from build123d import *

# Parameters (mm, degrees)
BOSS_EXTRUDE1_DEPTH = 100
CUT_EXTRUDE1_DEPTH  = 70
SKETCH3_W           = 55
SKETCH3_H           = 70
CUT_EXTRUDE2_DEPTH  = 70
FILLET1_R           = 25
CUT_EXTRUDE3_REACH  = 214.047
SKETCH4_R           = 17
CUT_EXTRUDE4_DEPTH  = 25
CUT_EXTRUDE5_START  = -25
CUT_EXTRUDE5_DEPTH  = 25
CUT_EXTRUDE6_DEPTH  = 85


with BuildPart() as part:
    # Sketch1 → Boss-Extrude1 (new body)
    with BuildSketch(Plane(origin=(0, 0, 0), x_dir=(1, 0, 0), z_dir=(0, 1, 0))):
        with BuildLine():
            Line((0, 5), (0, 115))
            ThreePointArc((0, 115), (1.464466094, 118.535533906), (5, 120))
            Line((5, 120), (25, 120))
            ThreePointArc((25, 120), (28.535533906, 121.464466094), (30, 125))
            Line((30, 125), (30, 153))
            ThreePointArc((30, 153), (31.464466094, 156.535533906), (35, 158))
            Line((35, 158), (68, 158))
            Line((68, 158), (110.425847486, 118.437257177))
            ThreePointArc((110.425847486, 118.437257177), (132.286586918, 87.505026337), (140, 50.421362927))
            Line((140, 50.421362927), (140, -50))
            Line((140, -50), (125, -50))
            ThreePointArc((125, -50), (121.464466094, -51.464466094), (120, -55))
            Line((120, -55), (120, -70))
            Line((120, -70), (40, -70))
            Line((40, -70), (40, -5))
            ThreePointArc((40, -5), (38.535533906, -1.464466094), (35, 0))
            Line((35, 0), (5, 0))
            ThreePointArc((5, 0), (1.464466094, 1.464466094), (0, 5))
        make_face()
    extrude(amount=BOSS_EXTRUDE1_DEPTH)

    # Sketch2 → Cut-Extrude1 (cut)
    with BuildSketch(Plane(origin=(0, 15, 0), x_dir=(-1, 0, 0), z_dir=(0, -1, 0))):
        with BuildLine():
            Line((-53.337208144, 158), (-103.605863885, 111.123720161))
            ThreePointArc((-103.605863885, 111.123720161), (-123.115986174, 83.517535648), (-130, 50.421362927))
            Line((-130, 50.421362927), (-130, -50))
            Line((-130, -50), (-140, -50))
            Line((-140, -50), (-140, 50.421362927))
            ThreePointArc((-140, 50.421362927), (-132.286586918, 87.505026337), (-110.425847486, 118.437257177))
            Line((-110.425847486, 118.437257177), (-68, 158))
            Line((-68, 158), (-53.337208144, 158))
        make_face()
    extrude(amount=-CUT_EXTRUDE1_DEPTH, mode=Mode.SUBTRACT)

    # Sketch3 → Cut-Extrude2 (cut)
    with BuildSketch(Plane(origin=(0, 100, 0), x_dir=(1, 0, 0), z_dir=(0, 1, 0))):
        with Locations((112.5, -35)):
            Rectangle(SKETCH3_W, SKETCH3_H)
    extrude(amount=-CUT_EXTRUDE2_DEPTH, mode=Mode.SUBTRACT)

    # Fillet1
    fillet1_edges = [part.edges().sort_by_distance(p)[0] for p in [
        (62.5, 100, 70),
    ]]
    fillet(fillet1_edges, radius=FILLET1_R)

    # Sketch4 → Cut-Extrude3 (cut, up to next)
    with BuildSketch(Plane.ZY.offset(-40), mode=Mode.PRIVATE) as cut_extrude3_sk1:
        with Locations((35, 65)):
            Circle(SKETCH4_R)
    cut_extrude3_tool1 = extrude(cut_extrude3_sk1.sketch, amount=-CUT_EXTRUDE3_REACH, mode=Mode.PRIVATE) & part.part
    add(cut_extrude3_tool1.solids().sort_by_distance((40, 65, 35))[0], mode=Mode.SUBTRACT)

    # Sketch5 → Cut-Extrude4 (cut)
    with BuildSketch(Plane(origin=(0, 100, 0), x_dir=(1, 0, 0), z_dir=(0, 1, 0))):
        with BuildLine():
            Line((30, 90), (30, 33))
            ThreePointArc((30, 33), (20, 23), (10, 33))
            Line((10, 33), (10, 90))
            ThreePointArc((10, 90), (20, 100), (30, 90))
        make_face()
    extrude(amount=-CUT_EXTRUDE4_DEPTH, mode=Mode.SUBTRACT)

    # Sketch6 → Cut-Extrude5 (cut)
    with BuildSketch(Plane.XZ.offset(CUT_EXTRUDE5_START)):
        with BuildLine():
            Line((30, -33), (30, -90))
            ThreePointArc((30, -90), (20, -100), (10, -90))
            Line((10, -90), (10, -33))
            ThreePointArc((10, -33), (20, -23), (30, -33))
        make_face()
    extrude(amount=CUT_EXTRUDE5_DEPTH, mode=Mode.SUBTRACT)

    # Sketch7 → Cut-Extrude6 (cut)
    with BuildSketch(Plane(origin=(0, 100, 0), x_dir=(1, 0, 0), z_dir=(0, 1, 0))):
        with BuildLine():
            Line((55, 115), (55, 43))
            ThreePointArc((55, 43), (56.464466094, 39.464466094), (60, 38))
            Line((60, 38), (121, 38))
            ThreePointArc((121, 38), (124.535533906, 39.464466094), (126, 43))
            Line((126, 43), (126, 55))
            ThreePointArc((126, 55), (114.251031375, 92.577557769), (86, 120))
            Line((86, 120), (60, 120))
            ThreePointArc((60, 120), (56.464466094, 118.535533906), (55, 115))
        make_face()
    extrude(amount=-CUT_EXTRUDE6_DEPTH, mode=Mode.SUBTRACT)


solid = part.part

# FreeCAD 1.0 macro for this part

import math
import FreeCAD as App
import Part
import Sketcher
Q = App.Units.Quantity


def edges_at(feature, points):
    """Names of the edges that pass closest to the given points."""
    edges = feature.Shape.Edges
    near = lambda p: min(range(len(edges)), key=lambda i: edges[i].distToShape(Part.Vertex(*p))[0])
    return sorted({f"Edge{near(p) + 1}" for p in points})

doc = App.newDocument("Part")
body = doc.addObject("PartDesign::Body", "Body")

# Sketch on XZ plane
sketch1 = doc.addObject("Sketcher::SketchObject", "Sketch")
body.addObject(sketch1)
sketch1.AttachmentSupport = (doc.XZ_Plane, [""])
sketch1.MapMode = "FlatFace"
sketch1.addGeometry([
    Part.LineSegment(App.Vector(0, -115, 0), App.Vector(0, -5, 0)),  # 0
    Part.ArcOfCircle(Part.Circle(App.Vector(5, -5, 0), App.Vector(0, 0, 1), 5), math.radians(90), math.radians(180)),  # 1
    Part.LineSegment(App.Vector(5, 0, 0), App.Vector(35, 0, 0)),  # 2
    Part.ArcOfCircle(Part.Circle(App.Vector(35, 5, 0), App.Vector(0, 0, 1), 5), math.radians(-90), math.radians(0)),  # 3
    Part.LineSegment(App.Vector(40, 5, 0), App.Vector(40, 70, 0)),  # 4
    Part.LineSegment(App.Vector(40, 70, 0), App.Vector(120, 70, 0)),  # 5
    Part.LineSegment(App.Vector(120, 70, 0), App.Vector(120, 55, 0)),  # 6
    Part.ArcOfCircle(Part.Circle(App.Vector(125, 55, 0), App.Vector(0, 0, 1), 5), math.radians(180), math.radians(270)),  # 7
    Part.LineSegment(App.Vector(125, 50, 0), App.Vector(140, 50, 0)),  # 8
    Part.LineSegment(App.Vector(140, 50, 0), App.Vector(140, -50, 0)),  # 9
    Part.ArcOfCircle(Part.Circle(App.Vector(47, -50, 0), App.Vector(0, 0, 1), 93), math.radians(-47), math.radians(0)),  # 10
    Part.LineSegment(App.Vector(110, -118, 0), App.Vector(68, -158, 0)),  # 11
    Part.LineSegment(App.Vector(68, -158, 0), App.Vector(35, -158, 0)),  # 12
    Part.ArcOfCircle(Part.Circle(App.Vector(35, -153, 0), App.Vector(0, 0, 1), 5), math.radians(180), math.radians(270)),  # 13
    Part.LineSegment(App.Vector(30, -153, 0), App.Vector(30, -125, 0)),  # 14
    Part.ArcOfCircle(Part.Circle(App.Vector(25, -125, 0), App.Vector(0, 0, 1), 5), math.radians(0), math.radians(90)),  # 15
    Part.LineSegment(App.Vector(25, -120, 0), App.Vector(5, -120, 0)),  # 16
    Part.ArcOfCircle(Part.Circle(App.Vector(5, -115, 0), App.Vector(0, 0, 1), 5), math.radians(180), math.radians(270)),  # 17
], False)
sketch1.addConstraint([
    Sketcher.Constraint("Tangent", 0, 2, 1, 2),
    Sketcher.Constraint("Tangent", 1, 1, 2, 1),
    Sketcher.Constraint("Tangent", 2, 2, 3, 1),
    Sketcher.Constraint("Tangent", 3, 2, 4, 1),
    Sketcher.Constraint("Coincident", 4, 2, 5, 1),
    Sketcher.Constraint("Coincident", 5, 2, 6, 1),
    Sketcher.Constraint("Tangent", 6, 2, 7, 1),
    Sketcher.Constraint("Tangent", 7, 2, 8, 1),
    Sketcher.Constraint("Coincident", 8, 2, 9, 1),
    Sketcher.Constraint("Tangent", 9, 2, 10, 2),
    Sketcher.Constraint("Tangent", 10, 1, 11, 1),
    Sketcher.Constraint("Coincident", 11, 2, 12, 1),
    Sketcher.Constraint("Tangent", 12, 2, 13, 2),
    Sketcher.Constraint("Tangent", 13, 1, 14, 1),
    Sketcher.Constraint("Tangent", 14, 2, 15, 1),
    Sketcher.Constraint("Tangent", 15, 2, 16, 1),
    Sketcher.Constraint("Tangent", 16, 2, 17, 2),
    Sketcher.Constraint("Tangent", 17, 1, 0, 1),
    Sketcher.Constraint("Vertical", 0),
    Sketcher.Constraint("Horizontal", 2),
    Sketcher.Constraint("Vertical", 4),
    Sketcher.Constraint("Horizontal", 5),
    Sketcher.Constraint("Vertical", 6),
    Sketcher.Constraint("Horizontal", 8),
    Sketcher.Constraint("Vertical", 9),
    Sketcher.Constraint("Horizontal", 12),
    Sketcher.Constraint("Vertical", 14),
    Sketcher.Constraint("Horizontal", 16),
    Sketcher.Constraint("Equal", 1, 3),
    Sketcher.Constraint("Equal", 3, 7),
    Sketcher.Constraint("Equal", 7, 13),
    Sketcher.Constraint("Equal", 13, 15),
    Sketcher.Constraint("Equal", 15, 17),
    Sketcher.Constraint("PointOnObject", 0, 2, -2),
    Sketcher.Constraint("PointOnObject", 1, 1, -1),
    Sketcher.Constraint("Vertical", 3, 3, 13, 3),
    Sketcher.Constraint("Equal", 8, 6),
    Sketcher.Constraint("Radius", 1, Q("5 mm")),
    Sketcher.Constraint("Radius", 10, Q("93 mm")),
    Sketcher.Constraint("DistanceX", 2, 1, 2, 2, Q("30 mm")),
    Sketcher.Constraint("DistanceX", 5, 1, 5, 2, Q("80 mm")),
    Sketcher.Constraint("DistanceX", 8, 1, 8, 2, Q("15 mm")),
    Sketcher.Constraint("DistanceX", 12, 2, 12, 1, Q("33 mm")),
    Sketcher.Constraint("DistanceY", 0, 1, 0, 2, Q("110 mm")),
    Sketcher.Constraint("DistanceY", 4, 1, 4, 2, Q("65 mm")),
    Sketcher.Constraint("DistanceY", 14, 1, 14, 2, Q("28 mm")),
    Sketcher.Constraint("Angle", 11, Q("-137 deg")),
])
pad1 = doc.addObject("PartDesign::Pad", "Pad")
body.addObject(pad1)
pad1.Profile = sketch1
pad1.Length = 100
pad1.Reversed = True

# Sketch on XZ plane
sketch2 = doc.addObject("Sketcher::SketchObject", "Sketch001")
body.addObject(sketch2)
sketch2.AttachmentSupport = (doc.XZ_Plane, [""])
sketch2.MapMode = "FlatFace"
sketch2.AttachmentOffset = App.Placement(App.Vector(0, 0, -15), App.Rotation())
sketch2.addGeometry([
    Part.LineSegment(App.Vector(104, -111, 0), App.Vector(53, -158, 0)),  # 0
    Part.LineSegment(App.Vector(53, -158, 0), App.Vector(68, -158, 0)),  # 1
    Part.LineSegment(App.Vector(68, -158, 0), App.Vector(110, -118, 0)),  # 2
    Part.ArcOfCircle(Part.Circle(App.Vector(47, -50, 0), App.Vector(0, 0, 1), 93), math.radians(-47), math.radians(0)),  # 3
    Part.LineSegment(App.Vector(140, -50, 0), App.Vector(140, 50, 0)),  # 4
    Part.LineSegment(App.Vector(140, 50, 0), App.Vector(130, 50, 0)),  # 5
    Part.LineSegment(App.Vector(130, 50, 0), App.Vector(130, -50, 0)),  # 6
    Part.ArcOfCircle(Part.Circle(App.Vector(47, -50, 0), App.Vector(0, 0, 1), 83), math.radians(-47), math.radians(0)),  # 7
], False)
sketch2.addConstraint([
    Sketcher.Constraint("Coincident", 0, 2, 1, 1),
    Sketcher.Constraint("Coincident", 1, 2, 2, 1),
    Sketcher.Constraint("Tangent", 2, 2, 3, 1),
    Sketcher.Constraint("Tangent", 3, 2, 4, 1),
    Sketcher.Constraint("Coincident", 4, 2, 5, 1),
    Sketcher.Constraint("Coincident", 5, 2, 6, 1),
    Sketcher.Constraint("Tangent", 6, 2, 7, 2),
    Sketcher.Constraint("Tangent", 7, 1, 0, 1),
    Sketcher.Constraint("Horizontal", 1),
    Sketcher.Constraint("Vertical", 4),
    Sketcher.Constraint("Horizontal", 5),
    Sketcher.Constraint("Vertical", 6),
    Sketcher.Constraint("Coincident", 7, 3, 3, 3),
    Sketcher.Constraint("Parallel", 0, 2),
    Sketcher.Constraint("Radius", 3, Q("93 mm")),
    Sketcher.Constraint("Radius", 7, Q("83 mm")),
    Sketcher.Constraint("Angle", 0, Q("-137 deg")),
    Sketcher.Constraint("DistanceX", -1, 1, 3, 3, Q("47 mm")),
    Sketcher.Constraint("DistanceY", 0, 2, -1, 1, Q("158 mm")),
    Sketcher.Constraint("DistanceX", -1, 1, 1, 2, Q("68 mm")),
    Sketcher.Constraint("DistanceY", -1, 1, 4, 2, Q("50 mm")),
])
pocket1 = doc.addObject("PartDesign::Pocket", "Pocket")
body.addObject(pocket1)
pocket1.Profile = sketch2
pocket1.Length = 70

# Sketch on XZ plane
sketch3 = doc.addObject("Sketcher::SketchObject", "Sketch002")
body.addObject(sketch3)
sketch3.AttachmentSupport = (doc.XZ_Plane, [""])
sketch3.MapMode = "FlatFace"
sketch3.AttachmentOffset = App.Placement(App.Vector(0, 0, -100), App.Rotation())
sketch3.addGeometry([
    Part.LineSegment(App.Vector(85, 0, 0), App.Vector(85, 70, 0)),
    Part.LineSegment(App.Vector(85, 70, 0), App.Vector(140, 70, 0)),
    Part.LineSegment(App.Vector(140, 70, 0), App.Vector(140, 0, 0)),
    Part.LineSegment(App.Vector(140, 0, 0), App.Vector(85, 0, 0)),
], False)
sketch3.addConstraint([
    Sketcher.Constraint("Coincident", 0, 2, 1, 1),
    Sketcher.Constraint("Coincident", 1, 2, 2, 1),
    Sketcher.Constraint("Coincident", 2, 2, 3, 1),
    Sketcher.Constraint("Coincident", 3, 2, 0, 1),
    Sketcher.Constraint("Vertical", 0),
    Sketcher.Constraint("Horizontal", 1),
    Sketcher.Constraint("Vertical", 2),
    Sketcher.Constraint("Horizontal", 3),
    Sketcher.Constraint("PointOnObject", 2, 2, -1),
    Sketcher.Constraint("DistanceX", 1, 1, 1, 2, Q("55 mm")),
    Sketcher.Constraint("DistanceY", 0, 1, 0, 2, Q("70 mm")),
    Sketcher.Constraint("DistanceX", -1, 1, 0, 2, Q("85 mm")),
])
pocket2 = doc.addObject("PartDesign::Pocket", "Pocket001")
body.addObject(pocket2)
pocket2.Profile = sketch3
pocket2.Length = 70
pocket2.Reversed = True
doc.recompute()

fillet = doc.addObject("PartDesign::Fillet", "Fillet")
body.addObject(fillet)
fillet.Base = (pocket2, edges_at(pocket2, [(62.5, 100, 70)]))
fillet.Radius = 25

# Sketch on YZ plane
sketch4 = doc.addObject("Sketcher::SketchObject", "Sketch003")
body.addObject(sketch4)
sketch4.AttachmentSupport = (doc.YZ_Plane, [""])
sketch4.MapMode = "FlatFace"
sketch4.AttachmentOffset = App.Placement(App.Vector(0, 0, 40), App.Rotation())
sketch4.addGeometry(Part.Circle(App.Vector(65, 35, 0), App.Vector(0, 0, 1), 17), False)
sketch4.addConstraint([
    Sketcher.Constraint("Diameter", 0, Q("34 mm")),
    Sketcher.Constraint("DistanceX", -1, 1, 0, 3, Q("65 mm")),
    Sketcher.Constraint("DistanceY", -1, 1, 0, 3, Q("35 mm")),
])
pocket3 = doc.addObject("PartDesign::Pocket", "Pocket002")
body.addObject(pocket3)
pocket3.Profile = sketch4
pocket3.Type = "UpToFirst"
pocket3.Reversed = True

# Sketch on XZ plane
sketch5 = doc.addObject("Sketcher::SketchObject", "Sketch004")
body.addObject(sketch5)
sketch5.AttachmentSupport = (doc.XZ_Plane, [""])
sketch5.MapMode = "FlatFace"
sketch5.AttachmentOffset = App.Placement(App.Vector(0, 0, -100), App.Rotation())
sketch5.addGeometry([
    Part.LineSegment(App.Vector(30, -33, 0), App.Vector(30, -90, 0)),
    Part.ArcOfCircle(Part.Circle(App.Vector(20, -90, 0), App.Vector(0, 0, 1), 10), math.radians(180), math.radians(360)),
    Part.LineSegment(App.Vector(10, -90, 0), App.Vector(10, -33, 0)),
    Part.ArcOfCircle(Part.Circle(App.Vector(20, -33, 0), App.Vector(0, 0, 1), 10), math.radians(0), math.radians(180)),
], False)
sketch5.addConstraint([
    Sketcher.Constraint("Tangent", 0, 2, 1, 2),
    Sketcher.Constraint("Tangent", 1, 1, 2, 1),
    Sketcher.Constraint("Tangent", 2, 2, 3, 2),
    Sketcher.Constraint("Tangent", 3, 1, 0, 1),
    Sketcher.Constraint("Vertical", 0),
    Sketcher.Constraint("Vertical", 2),
    Sketcher.Constraint("Radius", 1, Q("10 mm")),
    Sketcher.Constraint("DistanceY", 0, 2, 0, 1, Q("57 mm")),
    Sketcher.Constraint("DistanceX", -1, 1, 1, 3, Q("20 mm")),
    Sketcher.Constraint("DistanceY", 1, 3, -1, 1, Q("90 mm")),
])
pocket4 = doc.addObject("PartDesign::Pocket", "Pocket003")
body.addObject(pocket4)
pocket4.Profile = sketch5
pocket4.Length = 25
pocket4.Reversed = True

# Sketch on XZ plane
sketch6 = doc.addObject("Sketcher::SketchObject", "Sketch005")
body.addObject(sketch6)
sketch6.AttachmentSupport = (doc.XZ_Plane, [""])
sketch6.MapMode = "FlatFace"
sketch6.AttachmentOffset = App.Placement(App.Vector(0, 0, -25), App.Rotation())
sketch6.addGeometry([
    Part.LineSegment(App.Vector(30, -90, 0), App.Vector(30, -33, 0)),
    Part.ArcOfCircle(Part.Circle(App.Vector(20, -33, 0), App.Vector(0, 0, 1), 10), math.radians(0), math.radians(180)),
    Part.LineSegment(App.Vector(10, -33, 0), App.Vector(10, -90, 0)),
    Part.ArcOfCircle(Part.Circle(App.Vector(20, -90, 0), App.Vector(0, 0, 1), 10), math.radians(180), math.radians(360)),
], False)
sketch6.addConstraint([
    Sketcher.Constraint("Tangent", 0, 2, 1, 1),
    Sketcher.Constraint("Tangent", 1, 2, 2, 1),
    Sketcher.Constraint("Tangent", 2, 2, 3, 1),
    Sketcher.Constraint("Tangent", 3, 2, 0, 1),
    Sketcher.Constraint("Vertical", 0),
    Sketcher.Constraint("Vertical", 2),
    Sketcher.Constraint("Radius", 1, Q("10 mm")),
    Sketcher.Constraint("DistanceY", 0, 1, 0, 2, Q("57 mm")),
    Sketcher.Constraint("DistanceX", -1, 1, 1, 3, Q("20 mm")),
    Sketcher.Constraint("DistanceY", 1, 3, -1, 1, Q("33 mm")),
])
pocket5 = doc.addObject("PartDesign::Pocket", "Pocket004")
body.addObject(pocket5)
pocket5.Profile = sketch6
pocket5.Length = 25
pocket5.Reversed = True

# Sketch on XZ plane
sketch7 = doc.addObject("Sketcher::SketchObject", "Sketch006")
body.addObject(sketch7)
sketch7.AttachmentSupport = (doc.XZ_Plane, [""])
sketch7.MapMode = "FlatFace"
sketch7.AttachmentOffset = App.Placement(App.Vector(0, 0, -100), App.Rotation())
sketch7.addGeometry([
    Part.LineSegment(App.Vector(55, -115, 0), App.Vector(55, -43, 0)),  # 0
    Part.ArcOfCircle(Part.Circle(App.Vector(60, -43, 0), App.Vector(0, 0, 1), 5), math.radians(90), math.radians(180)),  # 1
    Part.LineSegment(App.Vector(60, -38, 0), App.Vector(121, -38, 0)),  # 2
    Part.ArcOfCircle(Part.Circle(App.Vector(121, -43, 0), App.Vector(0, 0, 1), 5), math.radians(0), math.radians(90)),  # 3
    Part.LineSegment(App.Vector(126, -43, 0), App.Vector(126, -55, 0)),  # 4
    Part.ArcOfCircle(Part.Circle(App.Vector(46, -51, 0), App.Vector(0, 0, 1), 80), math.radians(-60), math.radians(-3)),  # 5
    Part.LineSegment(App.Vector(86, -120, 0), App.Vector(60, -120, 0)),  # 6
    Part.ArcOfCircle(Part.Circle(App.Vector(60, -115, 0), App.Vector(0, 0, 1), 5), math.radians(180), math.radians(270)),  # 7
], False)
sketch7.addConstraint([
    Sketcher.Constraint("Tangent", 0, 2, 1, 2),
    Sketcher.Constraint("Tangent", 1, 1, 2, 1),
    Sketcher.Constraint("Tangent", 2, 2, 3, 2),
    Sketcher.Constraint("Tangent", 3, 1, 4, 1),
    Sketcher.Constraint("Coincident", 4, 2, 5, 2),
    Sketcher.Constraint("Coincident", 5, 1, 6, 1),
    Sketcher.Constraint("Tangent", 6, 2, 7, 2),
    Sketcher.Constraint("Tangent", 7, 1, 0, 1),
    Sketcher.Constraint("Vertical", 0),
    Sketcher.Constraint("Horizontal", 2),
    Sketcher.Constraint("Vertical", 4),
    Sketcher.Constraint("Horizontal", 6),
    Sketcher.Constraint("Equal", 1, 3),
    Sketcher.Constraint("Equal", 3, 7),
    Sketcher.Constraint("Radius", 1, Q("5 mm")),
    Sketcher.Constraint("Radius", 5, Q("80 mm")),
    Sketcher.Constraint("DistanceX", 2, 1, 2, 2, Q("61 mm")),
    Sketcher.Constraint("DistanceX", 6, 2, 6, 1, Q("26 mm")),
    Sketcher.Constraint("DistanceY", 0, 1, 0, 2, Q("72 mm")),
    Sketcher.Constraint("DistanceY", 4, 2, 4, 1, Q("12 mm")),
    Sketcher.Constraint("DistanceX", -1, 1, 1, 3, Q("60 mm")),
    Sketcher.Constraint("DistanceY", 1, 3, -1, 1, Q("43 mm")),
])
pocket6 = doc.addObject("PartDesign::Pocket", "Pocket005")
body.addObject(pocket6)
pocket6.Profile = sketch7
pocket6.Length = 85
pocket6.Reversed = True

doc.recompute()
